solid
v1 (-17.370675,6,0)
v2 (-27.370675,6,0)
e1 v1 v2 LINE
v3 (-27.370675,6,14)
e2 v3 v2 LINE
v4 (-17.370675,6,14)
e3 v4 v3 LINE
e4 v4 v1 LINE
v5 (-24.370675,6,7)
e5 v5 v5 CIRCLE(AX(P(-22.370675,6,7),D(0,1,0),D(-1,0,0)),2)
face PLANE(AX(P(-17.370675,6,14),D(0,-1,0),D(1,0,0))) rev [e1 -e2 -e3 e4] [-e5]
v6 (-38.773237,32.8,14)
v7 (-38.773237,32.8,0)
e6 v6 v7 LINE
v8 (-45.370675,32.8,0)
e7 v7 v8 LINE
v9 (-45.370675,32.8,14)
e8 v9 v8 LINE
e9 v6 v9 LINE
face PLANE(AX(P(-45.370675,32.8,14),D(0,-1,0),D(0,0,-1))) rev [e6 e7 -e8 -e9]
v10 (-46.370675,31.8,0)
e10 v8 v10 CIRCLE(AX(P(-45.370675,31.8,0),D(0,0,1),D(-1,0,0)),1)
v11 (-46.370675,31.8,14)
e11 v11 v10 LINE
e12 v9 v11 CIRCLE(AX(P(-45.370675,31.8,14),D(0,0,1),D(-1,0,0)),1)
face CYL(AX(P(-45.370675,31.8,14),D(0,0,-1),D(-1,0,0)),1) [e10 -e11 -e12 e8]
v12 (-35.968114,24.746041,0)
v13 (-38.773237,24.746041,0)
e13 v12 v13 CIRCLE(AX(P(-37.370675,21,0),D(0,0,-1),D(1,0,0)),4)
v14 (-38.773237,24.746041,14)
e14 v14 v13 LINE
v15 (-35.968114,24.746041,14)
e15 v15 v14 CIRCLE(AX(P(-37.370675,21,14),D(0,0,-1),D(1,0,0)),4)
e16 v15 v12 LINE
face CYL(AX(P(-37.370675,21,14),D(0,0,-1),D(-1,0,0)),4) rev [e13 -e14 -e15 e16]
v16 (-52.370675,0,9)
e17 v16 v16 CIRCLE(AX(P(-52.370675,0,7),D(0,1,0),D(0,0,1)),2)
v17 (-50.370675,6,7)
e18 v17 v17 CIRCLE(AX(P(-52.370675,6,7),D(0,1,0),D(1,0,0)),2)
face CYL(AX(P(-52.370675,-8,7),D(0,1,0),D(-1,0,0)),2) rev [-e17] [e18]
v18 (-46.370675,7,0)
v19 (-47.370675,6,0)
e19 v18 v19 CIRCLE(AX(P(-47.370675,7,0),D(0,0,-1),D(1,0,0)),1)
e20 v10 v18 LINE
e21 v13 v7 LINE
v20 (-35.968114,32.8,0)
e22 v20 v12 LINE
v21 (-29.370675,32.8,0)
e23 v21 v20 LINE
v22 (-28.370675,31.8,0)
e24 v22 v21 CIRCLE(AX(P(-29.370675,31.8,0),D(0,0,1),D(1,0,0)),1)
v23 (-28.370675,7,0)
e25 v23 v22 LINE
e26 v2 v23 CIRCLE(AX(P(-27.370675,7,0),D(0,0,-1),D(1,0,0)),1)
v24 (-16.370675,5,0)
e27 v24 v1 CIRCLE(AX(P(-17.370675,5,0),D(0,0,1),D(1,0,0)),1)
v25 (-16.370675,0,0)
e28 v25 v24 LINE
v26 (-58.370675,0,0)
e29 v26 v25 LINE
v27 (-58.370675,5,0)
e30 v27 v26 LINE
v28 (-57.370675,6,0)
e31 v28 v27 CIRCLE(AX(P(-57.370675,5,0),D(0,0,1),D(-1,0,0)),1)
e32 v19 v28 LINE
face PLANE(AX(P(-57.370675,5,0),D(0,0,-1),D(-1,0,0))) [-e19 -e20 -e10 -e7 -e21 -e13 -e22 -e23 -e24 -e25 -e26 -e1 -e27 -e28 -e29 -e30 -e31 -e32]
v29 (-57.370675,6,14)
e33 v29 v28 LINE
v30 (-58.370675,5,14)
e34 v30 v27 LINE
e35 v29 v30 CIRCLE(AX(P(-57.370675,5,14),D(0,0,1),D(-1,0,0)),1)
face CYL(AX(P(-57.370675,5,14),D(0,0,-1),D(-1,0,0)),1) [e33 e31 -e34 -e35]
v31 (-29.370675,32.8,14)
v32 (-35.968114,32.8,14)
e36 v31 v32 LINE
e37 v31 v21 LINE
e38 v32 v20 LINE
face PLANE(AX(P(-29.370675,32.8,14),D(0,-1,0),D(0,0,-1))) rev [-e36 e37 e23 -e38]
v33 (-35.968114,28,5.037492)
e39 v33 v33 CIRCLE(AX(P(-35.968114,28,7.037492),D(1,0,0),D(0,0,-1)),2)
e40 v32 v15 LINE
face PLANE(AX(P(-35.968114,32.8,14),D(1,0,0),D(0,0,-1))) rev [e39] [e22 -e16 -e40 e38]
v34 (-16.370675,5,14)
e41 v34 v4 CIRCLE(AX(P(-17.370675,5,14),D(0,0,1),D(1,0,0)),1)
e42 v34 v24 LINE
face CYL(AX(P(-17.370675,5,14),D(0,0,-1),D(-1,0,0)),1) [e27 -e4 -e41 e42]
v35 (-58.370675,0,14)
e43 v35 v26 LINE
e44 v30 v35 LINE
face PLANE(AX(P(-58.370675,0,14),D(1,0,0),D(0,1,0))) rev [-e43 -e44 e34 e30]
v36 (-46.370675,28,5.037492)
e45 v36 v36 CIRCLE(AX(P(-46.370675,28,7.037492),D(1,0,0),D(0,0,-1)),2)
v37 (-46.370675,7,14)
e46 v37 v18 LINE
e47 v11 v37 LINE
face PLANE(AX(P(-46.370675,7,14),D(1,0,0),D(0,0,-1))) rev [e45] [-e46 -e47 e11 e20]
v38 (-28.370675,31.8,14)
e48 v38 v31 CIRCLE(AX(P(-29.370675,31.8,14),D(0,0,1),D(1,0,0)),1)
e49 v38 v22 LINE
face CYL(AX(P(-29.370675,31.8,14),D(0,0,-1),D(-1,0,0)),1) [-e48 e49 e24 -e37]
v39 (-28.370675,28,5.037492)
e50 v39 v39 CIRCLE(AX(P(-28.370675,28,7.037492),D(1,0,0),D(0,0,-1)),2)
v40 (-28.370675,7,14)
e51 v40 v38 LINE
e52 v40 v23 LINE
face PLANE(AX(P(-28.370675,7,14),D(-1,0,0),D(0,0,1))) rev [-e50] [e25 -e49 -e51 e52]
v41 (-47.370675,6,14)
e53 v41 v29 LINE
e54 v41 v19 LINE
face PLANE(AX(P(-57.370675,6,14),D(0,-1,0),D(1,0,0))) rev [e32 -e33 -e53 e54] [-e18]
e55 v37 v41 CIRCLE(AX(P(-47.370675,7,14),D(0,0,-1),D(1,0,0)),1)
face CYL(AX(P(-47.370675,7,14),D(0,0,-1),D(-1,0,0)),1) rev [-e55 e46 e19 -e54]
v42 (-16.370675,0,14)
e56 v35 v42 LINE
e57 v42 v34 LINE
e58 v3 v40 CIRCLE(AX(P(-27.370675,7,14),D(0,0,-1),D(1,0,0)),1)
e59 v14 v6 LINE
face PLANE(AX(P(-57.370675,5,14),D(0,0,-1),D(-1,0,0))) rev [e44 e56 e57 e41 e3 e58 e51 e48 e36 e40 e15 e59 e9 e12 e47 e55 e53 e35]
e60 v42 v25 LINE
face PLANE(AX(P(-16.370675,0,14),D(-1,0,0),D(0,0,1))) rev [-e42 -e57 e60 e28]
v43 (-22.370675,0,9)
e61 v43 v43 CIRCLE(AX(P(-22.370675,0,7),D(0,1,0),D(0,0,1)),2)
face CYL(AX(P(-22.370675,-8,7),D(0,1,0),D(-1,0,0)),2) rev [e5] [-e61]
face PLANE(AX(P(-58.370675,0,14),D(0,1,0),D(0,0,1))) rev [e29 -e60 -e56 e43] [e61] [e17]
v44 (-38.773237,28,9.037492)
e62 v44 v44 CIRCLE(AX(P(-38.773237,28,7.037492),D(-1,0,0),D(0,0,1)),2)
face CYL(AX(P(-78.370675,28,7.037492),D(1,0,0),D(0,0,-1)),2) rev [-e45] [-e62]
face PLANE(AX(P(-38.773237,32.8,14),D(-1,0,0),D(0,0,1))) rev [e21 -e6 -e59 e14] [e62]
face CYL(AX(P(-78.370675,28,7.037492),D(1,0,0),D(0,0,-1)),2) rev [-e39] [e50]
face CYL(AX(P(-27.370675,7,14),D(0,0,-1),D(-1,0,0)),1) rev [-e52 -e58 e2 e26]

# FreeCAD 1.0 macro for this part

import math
import FreeCAD as App
import Part
import Sketcher
from FreeCAD import Vector
Q = App.Units.Quantity

doc = App.newDocument("Part")
body = doc.addObject("PartDesign::Body", "Body")

# Sketch on XY plane
sketch1 = body.newObject("Sketcher::SketchObject", "Sketch")
sketch1.AttachmentSupport = (doc.getObject("XY_Plane"), [""])
sketch1.MapMode = "FlatFace"
sketch1.addGeometry(Part.LineSegment(Vector(-58.370675, 0, 0), Vector(-16.370675, 0, 0)), False)
sketch1.addGeometry(Part.LineSegment(Vector(-16.370675, 0, 0), Vector(-16.370675, 5, 0)), False)
sketch1.addGeometry(Part.ArcOfCircle(Part.Circle(Vector(-17.370675, 5, 0), Vector(0, 0, 1), 1), math.radians(0), math.radians(90)), False)
sketch1.addGeometry(Part.LineSegment(Vector(-17.370675, 6, 0), Vector(-27.370675, 6, 0)), False)
sketch1.addGeometry(Part.ArcOfCircle(Part.Circle(Vector(-27.370675, 7, 0), Vector(0, 0, 1), 1), math.radians(-180), math.radians(-90)), False)
sketch1.addGeometry(Part.LineSegment(Vector(-28.370675, 7, 0), Vector(-28.370675, 31.8, 0)), False)
sketch1.addGeometry(Part.ArcOfCircle(Part.Circle(Vector(-29.370675, 31.8, 0), Vector(0, 0, 1), 1), math.radians(0), math.radians(90)), False)
sketch1.addGeometry(Part.LineSegment(Vector(-29.370675, 32.8, 0), Vector(-35.968114, 32.8, 0)), False)
sketch1.addGeometry(Part.LineSegment(Vector(-35.968114, 32.8, 0), Vector(-35.968114, 24.746041, 0)), False)
sketch1.addGeometry(Part.ArcOfCircle(Part.Circle(Vector(-37.370675, 21, 0), Vector(0, 0, 1), 4), math.radians(110.526491), math.radians(429.473509)), False)
sketch1.addGeometry(Part.LineSegment(Vector(-38.773237, 24.746041, 0), Vector(-38.773237, 32.8, 0)), False)
sketch1.addGeometry(Part.LineSegment(Vector(-38.773237, 32.8, 0), Vector(-45.370675, 32.8, 0)), False)
sketch1.addGeometry(Part.ArcOfCircle(Part.Circle(Vector(-45.370675, 31.8, 0), Vector(0, 0, 1), 1), math.radians(90), math.radians(180)), False)
sketch1.addGeometry(Part.LineSegment(Vector(-46.370675, 31.8, 0), Vector(-46.370675, 7, 0)), False)
sketch1.addGeometry(Part.ArcOfCircle(Part.Circle(Vector(-47.370675, 7, 0), Vector(0, 0, 1), 1), math.radians(-90), math.radians(0)), False)
sketch1.addGeometry(Part.LineSegment(Vector(-47.370675, 6, 0), Vector(-57.370675, 6, 0)), False)
sketch1.addGeometry(Part.ArcOfCircle(Part.Circle(Vector(-57.370675, 5, 0), Vector(0, 0, 1), 1), math.radians(90), math.radians(180)), False)
sketch1.addGeometry(Part.LineSegment(Vector(-58.370675, 5, 0), Vector(-58.370675, 0, 0)), False)
sketch1.addConstraint(Sketcher.Constraint("Coincident", 0, 2, 1, 1))
sketch1.addConstraint(Sketcher.Constraint("Tangent", 1, 2, 2, 1))
sketch1.addConstraint(Sketcher.Constraint("Tangent", 2, 2, 3, 1))
sketch1.addConstraint(Sketcher.Constraint("Tangent", 3, 2, 4, 2))
sketch1.addConstraint(Sketcher.Constraint("Tangent", 4, 1, 5, 1))
sketch1.addConstraint(Sketcher.Constraint("Tangent", 5, 2, 6, 1))
sketch1.addConstraint(Sketcher.Constraint("Tangent", 6, 2, 7, 1))
sketch1.addConstraint(Sketcher.Constraint("Coincident", 7, 2, 8, 1))
sketch1.addConstraint(Sketcher.Constraint("Coincident", 8, 2, 9, 2))
sketch1.addConstraint(Sketcher.Constraint("Coincident", 9, 1, 10, 1))
sketch1.addConstraint(Sketcher.Constraint("Coincident", 10, 2, 11, 1))
sketch1.addConstraint(Sketcher.Constraint("Tangent", 11, 2, 12, 1))
sketch1.addConstraint(Sketcher.Constraint("Tangent", 12, 2, 13, 1))
sketch1.addConstraint(Sketcher.Constraint("Tangent", 13, 2, 14, 2))
sketch1.addConstraint(Sketcher.Constraint("Tangent", 14, 1, 15, 1))
sketch1.addConstraint(Sketcher.Constraint("Tangent", 15, 2, 16, 1))
sketch1.addConstraint(Sketcher.Constraint("Tangent", 16, 2, 17, 1))
sketch1.addConstraint(Sketcher.Constraint("Coincident", 17, 2, 0, 1))
sketch1.addConstraint(Sketcher.Constraint("Horizontal", 0))
sketch1.addConstraint(Sketcher.Constraint("Vertical", 1))
sketch1.addConstraint(Sketcher.Constraint("Horizontal", 3))
sketch1.addConstraint(Sketcher.Constraint("Vertical", 5))
sketch1.addConstraint(Sketcher.Constraint("Horizontal", 7))
sketch1.addConstraint(Sketcher.Constraint("Vertical", 8))
sketch1.addConstraint(Sketcher.Constraint("Vertical", 10))
sketch1.addConstraint(Sketcher.Constraint("Horizontal", 11))
sketch1.addConstraint(Sketcher.Constraint("Vertical", 13))
sketch1.addConstraint(Sketcher.Constraint("Horizontal", 15))
sketch1.addConstraint(Sketcher.Constraint("Vertical", 17))
sketch1.addConstraint(Sketcher.Constraint("Equal", 2, 4))
sketch1.addConstraint(Sketcher.Constraint("Equal", 4, 6))
sketch1.addConstraint(Sketcher.Constraint("Equal", 6, 12))
sketch1.addConstraint(Sketcher.Constraint("Equal", 12, 14))
sketch1.addConstraint(Sketcher.Constraint("Equal", 14, 16))
sketch1.addConstraint(Sketcher.Constraint("PointOnObject", 0, 2, -1))
sketch1.addConstraint(Sketcher.Constraint("Horizontal", 6, 3, 12, 3))
sketch1.addConstraint(Sketcher.Constraint("Horizontal", 4, 3, 14, 3))
sketch1.addConstraint(Sketcher.Constraint("Horizontal", 8, 2, 9, 1))
sketch1.addConstraint(Sketcher.Constraint("Equal", 7, 11))
sketch1.addConstraint(Sketcher.Constraint("Equal", 3, 15))
sketch1.addConstraint(Sketcher.Constraint("Radius", 2, Q("1 mm")))
sketch1.addConstraint(Sketcher.Constraint("Radius", 9, Q("4 mm")))
sketch1.addConstraint(Sketcher.Constraint("DistanceX", 0, 1, 0, 2, Q("42 mm")))
sketch1.addConstraint(Sketcher.Constraint("DistanceX", 3, 2, 3, 1, Q("10 mm")))
sketch1.addConstraint(Sketcher.Constraint("DistanceY", 1, 1, 1, 2, Q("5 mm")))
sketch1.addConstraint(Sketcher.Constraint("DistanceY", 5, 1, 5, 2, Q("24.8 mm")))
sketch1.addConstraint(Sketcher.Constraint("DistanceY", -1, 1, 9, 3, Q("21 mm")))
sketch1.addConstraint(Sketcher.Constraint("DistanceX", 7, 2, 7, 1, Q("6.597438 mm")))
sketch1.addConstraint(Sketcher.Constraint("DistanceX", 2, 3, -1, 1, Q("17.370675 mm")))
pad1 = body.newObject("PartDesign::Pad", "Pad")
pad1.Profile = sketch1
pad1.Length = 14

# Sketch on XZ plane
sketch2 = body.newObject("Sketcher::SketchObject", "Sketch001")
sketch2.AttachmentSupport = (doc.getObject("XZ_Plane"), [""])
sketch2.MapMode = "FlatFace"
sketch2.AttachmentOffset = App.Placement(Vector(0, 0, -6), App.Rotation())
sketch2.addGeometry(Part.Circle(Vector(-22.370675, 7, 0), Vector(0, 0, 1), 2), False)
sketch2.addGeometry(Part.Circle(Vector(-52.370675, 7, 0), Vector(0, 0, 1), 2), False)
sketch2.addConstraint(Sketcher.Constraint("Equal", 0, 1))
sketch2.addConstraint(Sketcher.Constraint("Horizontal", 0, 3, 1, 3))
sketch2.addConstraint(Sketcher.Constraint("Diameter", 0, Q("4 mm")))
sketch2.addConstraint(Sketcher.Constraint("DistanceY", -1, 1, 0, 3, Q("7 mm")))
sketch2.addConstraint(Sketcher.Constraint("DistanceX", 1, 3, 0, 3, Q("30 mm")))
sketch2.addConstraint(Sketcher.Constraint("DistanceX", 0, 3, -1, 1, Q("22.370675 mm")))
pocket1 = body.newObject("PartDesign::Pocket", "Pocket")
pocket1.Profile = sketch2
pocket1.Length = 14
pocket1.Reversed = True

# Sketch on YZ plane
sketch3 = body.newObject("Sketcher::SketchObject", "Sketch002")
sketch3.AttachmentSupport = (doc.getObject("YZ_Plane"), [""])
sketch3.MapMode = "FlatFace"
sketch3.AttachmentOffset = App.Placement(Vector(0, 0, -28.370675), App.Rotation())
sketch3.addGeometry(Part.Circle(Vector(28, 7.037492, 0), Vector(0, 0, 1), 2), False)
sketch3.addConstraint(Sketcher.Constraint("Diameter", 0, Q("4 mm")))
sketch3.addConstraint(Sketcher.Constraint("DistanceX", -1, 1, 0, 3, Q("28 mm")))
sketch3.addConstraint(Sketcher.Constraint("DistanceY", -1, 1, 0, 3, Q("7.037492 mm")))
pocket2 = body.newObject("PartDesign::Pocket", "Pocket001")
pocket2.Profile = sketch3
pocket2.Length = 50

doc.recompute()
